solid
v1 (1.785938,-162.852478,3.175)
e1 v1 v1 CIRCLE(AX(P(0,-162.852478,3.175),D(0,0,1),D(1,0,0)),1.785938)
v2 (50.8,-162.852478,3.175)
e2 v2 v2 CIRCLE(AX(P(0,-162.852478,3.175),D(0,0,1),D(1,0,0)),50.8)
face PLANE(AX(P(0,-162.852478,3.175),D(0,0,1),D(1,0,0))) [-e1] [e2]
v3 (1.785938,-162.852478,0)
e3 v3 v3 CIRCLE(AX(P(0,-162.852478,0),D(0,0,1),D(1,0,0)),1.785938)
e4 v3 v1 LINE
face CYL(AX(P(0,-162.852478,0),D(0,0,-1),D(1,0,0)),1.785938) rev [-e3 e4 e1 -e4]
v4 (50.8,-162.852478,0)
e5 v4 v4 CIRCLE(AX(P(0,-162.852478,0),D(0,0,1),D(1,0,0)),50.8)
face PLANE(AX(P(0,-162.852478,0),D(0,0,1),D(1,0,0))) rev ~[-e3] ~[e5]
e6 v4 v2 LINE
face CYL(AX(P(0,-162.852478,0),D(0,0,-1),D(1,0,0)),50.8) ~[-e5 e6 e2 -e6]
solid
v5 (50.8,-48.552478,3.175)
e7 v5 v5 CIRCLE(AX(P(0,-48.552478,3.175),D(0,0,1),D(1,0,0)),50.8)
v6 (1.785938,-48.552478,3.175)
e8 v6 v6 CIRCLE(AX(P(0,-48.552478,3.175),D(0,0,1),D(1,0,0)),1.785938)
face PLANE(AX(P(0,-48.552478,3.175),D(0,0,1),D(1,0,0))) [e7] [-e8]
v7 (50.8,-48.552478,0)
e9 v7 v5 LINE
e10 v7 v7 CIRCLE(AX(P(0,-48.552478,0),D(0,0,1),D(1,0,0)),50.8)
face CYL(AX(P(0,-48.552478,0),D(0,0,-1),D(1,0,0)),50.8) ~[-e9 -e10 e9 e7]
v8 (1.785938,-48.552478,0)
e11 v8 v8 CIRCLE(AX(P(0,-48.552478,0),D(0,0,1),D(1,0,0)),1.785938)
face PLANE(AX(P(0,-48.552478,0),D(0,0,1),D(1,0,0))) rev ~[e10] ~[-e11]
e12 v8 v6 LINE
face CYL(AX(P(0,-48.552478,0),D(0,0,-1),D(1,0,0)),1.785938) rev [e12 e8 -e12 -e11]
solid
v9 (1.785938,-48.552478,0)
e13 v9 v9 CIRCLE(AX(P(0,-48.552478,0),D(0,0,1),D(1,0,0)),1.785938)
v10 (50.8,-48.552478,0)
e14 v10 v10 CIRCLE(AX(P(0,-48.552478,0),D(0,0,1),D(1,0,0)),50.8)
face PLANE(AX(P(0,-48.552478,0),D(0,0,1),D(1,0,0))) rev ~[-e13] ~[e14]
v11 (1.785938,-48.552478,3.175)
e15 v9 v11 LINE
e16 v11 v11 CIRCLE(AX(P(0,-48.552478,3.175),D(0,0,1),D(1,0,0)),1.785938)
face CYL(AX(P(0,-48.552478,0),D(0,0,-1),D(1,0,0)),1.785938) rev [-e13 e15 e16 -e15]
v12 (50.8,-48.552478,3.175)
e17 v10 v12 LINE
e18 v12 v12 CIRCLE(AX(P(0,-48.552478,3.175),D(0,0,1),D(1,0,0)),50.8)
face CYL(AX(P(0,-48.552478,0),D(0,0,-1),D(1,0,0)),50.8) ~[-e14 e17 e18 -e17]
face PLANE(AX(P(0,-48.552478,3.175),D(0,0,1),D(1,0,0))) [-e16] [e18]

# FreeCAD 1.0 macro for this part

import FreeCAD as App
import Part
import Sketcher

V = App.Vector
Q = App.Units.Quantity

doc = App.newDocument("Part")
body = doc.addObject("PartDesign::Body", "Body")

# Sketch on XY plane
sketch1 = body.newObject("Sketcher::SketchObject", "Sketch")
sketch1.AttachmentSupport = (doc.getObject("XY_Plane"), [""])
sketch1.MapMode = "FlatFace"
sketch1.addGeometry(Part.Circle(V(0, -48.6, 0), V(0, 0, 1), 50.8), False)
sketch1.addGeometry(Part.Circle(V(0, -48.6, 0), V(0, 0, 1), 1.8), False)
sketch1.addConstraint(Sketcher.Constraint("Coincident", 1, 3, 0, 3))
sketch1.addConstraint(Sketcher.Constraint("PointOnObject", 0, 3, -2))
sketch1.addConstraint(Sketcher.Constraint("Diameter", 0, Q("4 in")))
sketch1.addConstraint(Sketcher.Constraint("Diameter", 1, Q("0.140625 in")))
sketch1.addConstraint(Sketcher.Constraint("DistanceY", 0, 3, -1, 1, 48.552478))
pad1 = body.newObject("PartDesign::Pad", "Pad")
pad1.Profile = sketch1
pad1.Length = Q("0.125 in")
body2 = doc.addObject("PartDesign::Body", "Body001")
body2.AllowCompound = True

# Sketch on XY plane
sketch2 = body2.newObject("Sketcher::SketchObject", "Sketch001")
sketch2.AttachmentSupport = (doc.getObject("XY_Plane001"), [""])
sketch2.MapMode = "FlatFace"
sketch2.addGeometry(Part.Circle(V(0, -48.6, 0), V(0, 0, 1), 50.8), False)
sketch2.addGeometry(Part.Circle(V(0, -48.6, 0), V(0, 0, 1), 1.8), False)
sketch2.addGeometry(Part.Circle(V(0, -162.9, 0), V(0, 0, 1), 50.8), False)
sketch2.addGeometry(Part.Circle(V(0, -162.9, 0), V(0, 0, 1), 1.8), False)
sketch2.addConstraint(Sketcher.Constraint("Coincident", 1, 3, 0, 3))
sketch2.addConstraint(Sketcher.Constraint("Coincident", 3, 3, 2, 3))
sketch2.addConstraint(Sketcher.Constraint("Equal", 0, 2))
sketch2.addConstraint(Sketcher.Constraint("Equal", 1, 3))
sketch2.addConstraint(Sketcher.Constraint("PointOnObject", 0, 3, -2))
sketch2.addConstraint(Sketcher.Constraint("PointOnObject", 2, 3, -2))
sketch2.addConstraint(Sketcher.Constraint("Diameter", 0, Q("4 in")))
sketch2.addConstraint(Sketcher.Constraint("Diameter", 1, Q("0.140625 in")))
sketch2.addConstraint(Sketcher.Constraint("DistanceY", 2, 3, 0, 3, Q("4.5 in")))
sketch2.addConstraint(Sketcher.Constraint("DistanceY", 0, 3, -1, 1, 48.552478))
pad2 = body2.newObject("PartDesign::Pad", "Pad001")
pad2.Profile = sketch2
pad2.Length = Q("0.125 in")

doc.recompute()
